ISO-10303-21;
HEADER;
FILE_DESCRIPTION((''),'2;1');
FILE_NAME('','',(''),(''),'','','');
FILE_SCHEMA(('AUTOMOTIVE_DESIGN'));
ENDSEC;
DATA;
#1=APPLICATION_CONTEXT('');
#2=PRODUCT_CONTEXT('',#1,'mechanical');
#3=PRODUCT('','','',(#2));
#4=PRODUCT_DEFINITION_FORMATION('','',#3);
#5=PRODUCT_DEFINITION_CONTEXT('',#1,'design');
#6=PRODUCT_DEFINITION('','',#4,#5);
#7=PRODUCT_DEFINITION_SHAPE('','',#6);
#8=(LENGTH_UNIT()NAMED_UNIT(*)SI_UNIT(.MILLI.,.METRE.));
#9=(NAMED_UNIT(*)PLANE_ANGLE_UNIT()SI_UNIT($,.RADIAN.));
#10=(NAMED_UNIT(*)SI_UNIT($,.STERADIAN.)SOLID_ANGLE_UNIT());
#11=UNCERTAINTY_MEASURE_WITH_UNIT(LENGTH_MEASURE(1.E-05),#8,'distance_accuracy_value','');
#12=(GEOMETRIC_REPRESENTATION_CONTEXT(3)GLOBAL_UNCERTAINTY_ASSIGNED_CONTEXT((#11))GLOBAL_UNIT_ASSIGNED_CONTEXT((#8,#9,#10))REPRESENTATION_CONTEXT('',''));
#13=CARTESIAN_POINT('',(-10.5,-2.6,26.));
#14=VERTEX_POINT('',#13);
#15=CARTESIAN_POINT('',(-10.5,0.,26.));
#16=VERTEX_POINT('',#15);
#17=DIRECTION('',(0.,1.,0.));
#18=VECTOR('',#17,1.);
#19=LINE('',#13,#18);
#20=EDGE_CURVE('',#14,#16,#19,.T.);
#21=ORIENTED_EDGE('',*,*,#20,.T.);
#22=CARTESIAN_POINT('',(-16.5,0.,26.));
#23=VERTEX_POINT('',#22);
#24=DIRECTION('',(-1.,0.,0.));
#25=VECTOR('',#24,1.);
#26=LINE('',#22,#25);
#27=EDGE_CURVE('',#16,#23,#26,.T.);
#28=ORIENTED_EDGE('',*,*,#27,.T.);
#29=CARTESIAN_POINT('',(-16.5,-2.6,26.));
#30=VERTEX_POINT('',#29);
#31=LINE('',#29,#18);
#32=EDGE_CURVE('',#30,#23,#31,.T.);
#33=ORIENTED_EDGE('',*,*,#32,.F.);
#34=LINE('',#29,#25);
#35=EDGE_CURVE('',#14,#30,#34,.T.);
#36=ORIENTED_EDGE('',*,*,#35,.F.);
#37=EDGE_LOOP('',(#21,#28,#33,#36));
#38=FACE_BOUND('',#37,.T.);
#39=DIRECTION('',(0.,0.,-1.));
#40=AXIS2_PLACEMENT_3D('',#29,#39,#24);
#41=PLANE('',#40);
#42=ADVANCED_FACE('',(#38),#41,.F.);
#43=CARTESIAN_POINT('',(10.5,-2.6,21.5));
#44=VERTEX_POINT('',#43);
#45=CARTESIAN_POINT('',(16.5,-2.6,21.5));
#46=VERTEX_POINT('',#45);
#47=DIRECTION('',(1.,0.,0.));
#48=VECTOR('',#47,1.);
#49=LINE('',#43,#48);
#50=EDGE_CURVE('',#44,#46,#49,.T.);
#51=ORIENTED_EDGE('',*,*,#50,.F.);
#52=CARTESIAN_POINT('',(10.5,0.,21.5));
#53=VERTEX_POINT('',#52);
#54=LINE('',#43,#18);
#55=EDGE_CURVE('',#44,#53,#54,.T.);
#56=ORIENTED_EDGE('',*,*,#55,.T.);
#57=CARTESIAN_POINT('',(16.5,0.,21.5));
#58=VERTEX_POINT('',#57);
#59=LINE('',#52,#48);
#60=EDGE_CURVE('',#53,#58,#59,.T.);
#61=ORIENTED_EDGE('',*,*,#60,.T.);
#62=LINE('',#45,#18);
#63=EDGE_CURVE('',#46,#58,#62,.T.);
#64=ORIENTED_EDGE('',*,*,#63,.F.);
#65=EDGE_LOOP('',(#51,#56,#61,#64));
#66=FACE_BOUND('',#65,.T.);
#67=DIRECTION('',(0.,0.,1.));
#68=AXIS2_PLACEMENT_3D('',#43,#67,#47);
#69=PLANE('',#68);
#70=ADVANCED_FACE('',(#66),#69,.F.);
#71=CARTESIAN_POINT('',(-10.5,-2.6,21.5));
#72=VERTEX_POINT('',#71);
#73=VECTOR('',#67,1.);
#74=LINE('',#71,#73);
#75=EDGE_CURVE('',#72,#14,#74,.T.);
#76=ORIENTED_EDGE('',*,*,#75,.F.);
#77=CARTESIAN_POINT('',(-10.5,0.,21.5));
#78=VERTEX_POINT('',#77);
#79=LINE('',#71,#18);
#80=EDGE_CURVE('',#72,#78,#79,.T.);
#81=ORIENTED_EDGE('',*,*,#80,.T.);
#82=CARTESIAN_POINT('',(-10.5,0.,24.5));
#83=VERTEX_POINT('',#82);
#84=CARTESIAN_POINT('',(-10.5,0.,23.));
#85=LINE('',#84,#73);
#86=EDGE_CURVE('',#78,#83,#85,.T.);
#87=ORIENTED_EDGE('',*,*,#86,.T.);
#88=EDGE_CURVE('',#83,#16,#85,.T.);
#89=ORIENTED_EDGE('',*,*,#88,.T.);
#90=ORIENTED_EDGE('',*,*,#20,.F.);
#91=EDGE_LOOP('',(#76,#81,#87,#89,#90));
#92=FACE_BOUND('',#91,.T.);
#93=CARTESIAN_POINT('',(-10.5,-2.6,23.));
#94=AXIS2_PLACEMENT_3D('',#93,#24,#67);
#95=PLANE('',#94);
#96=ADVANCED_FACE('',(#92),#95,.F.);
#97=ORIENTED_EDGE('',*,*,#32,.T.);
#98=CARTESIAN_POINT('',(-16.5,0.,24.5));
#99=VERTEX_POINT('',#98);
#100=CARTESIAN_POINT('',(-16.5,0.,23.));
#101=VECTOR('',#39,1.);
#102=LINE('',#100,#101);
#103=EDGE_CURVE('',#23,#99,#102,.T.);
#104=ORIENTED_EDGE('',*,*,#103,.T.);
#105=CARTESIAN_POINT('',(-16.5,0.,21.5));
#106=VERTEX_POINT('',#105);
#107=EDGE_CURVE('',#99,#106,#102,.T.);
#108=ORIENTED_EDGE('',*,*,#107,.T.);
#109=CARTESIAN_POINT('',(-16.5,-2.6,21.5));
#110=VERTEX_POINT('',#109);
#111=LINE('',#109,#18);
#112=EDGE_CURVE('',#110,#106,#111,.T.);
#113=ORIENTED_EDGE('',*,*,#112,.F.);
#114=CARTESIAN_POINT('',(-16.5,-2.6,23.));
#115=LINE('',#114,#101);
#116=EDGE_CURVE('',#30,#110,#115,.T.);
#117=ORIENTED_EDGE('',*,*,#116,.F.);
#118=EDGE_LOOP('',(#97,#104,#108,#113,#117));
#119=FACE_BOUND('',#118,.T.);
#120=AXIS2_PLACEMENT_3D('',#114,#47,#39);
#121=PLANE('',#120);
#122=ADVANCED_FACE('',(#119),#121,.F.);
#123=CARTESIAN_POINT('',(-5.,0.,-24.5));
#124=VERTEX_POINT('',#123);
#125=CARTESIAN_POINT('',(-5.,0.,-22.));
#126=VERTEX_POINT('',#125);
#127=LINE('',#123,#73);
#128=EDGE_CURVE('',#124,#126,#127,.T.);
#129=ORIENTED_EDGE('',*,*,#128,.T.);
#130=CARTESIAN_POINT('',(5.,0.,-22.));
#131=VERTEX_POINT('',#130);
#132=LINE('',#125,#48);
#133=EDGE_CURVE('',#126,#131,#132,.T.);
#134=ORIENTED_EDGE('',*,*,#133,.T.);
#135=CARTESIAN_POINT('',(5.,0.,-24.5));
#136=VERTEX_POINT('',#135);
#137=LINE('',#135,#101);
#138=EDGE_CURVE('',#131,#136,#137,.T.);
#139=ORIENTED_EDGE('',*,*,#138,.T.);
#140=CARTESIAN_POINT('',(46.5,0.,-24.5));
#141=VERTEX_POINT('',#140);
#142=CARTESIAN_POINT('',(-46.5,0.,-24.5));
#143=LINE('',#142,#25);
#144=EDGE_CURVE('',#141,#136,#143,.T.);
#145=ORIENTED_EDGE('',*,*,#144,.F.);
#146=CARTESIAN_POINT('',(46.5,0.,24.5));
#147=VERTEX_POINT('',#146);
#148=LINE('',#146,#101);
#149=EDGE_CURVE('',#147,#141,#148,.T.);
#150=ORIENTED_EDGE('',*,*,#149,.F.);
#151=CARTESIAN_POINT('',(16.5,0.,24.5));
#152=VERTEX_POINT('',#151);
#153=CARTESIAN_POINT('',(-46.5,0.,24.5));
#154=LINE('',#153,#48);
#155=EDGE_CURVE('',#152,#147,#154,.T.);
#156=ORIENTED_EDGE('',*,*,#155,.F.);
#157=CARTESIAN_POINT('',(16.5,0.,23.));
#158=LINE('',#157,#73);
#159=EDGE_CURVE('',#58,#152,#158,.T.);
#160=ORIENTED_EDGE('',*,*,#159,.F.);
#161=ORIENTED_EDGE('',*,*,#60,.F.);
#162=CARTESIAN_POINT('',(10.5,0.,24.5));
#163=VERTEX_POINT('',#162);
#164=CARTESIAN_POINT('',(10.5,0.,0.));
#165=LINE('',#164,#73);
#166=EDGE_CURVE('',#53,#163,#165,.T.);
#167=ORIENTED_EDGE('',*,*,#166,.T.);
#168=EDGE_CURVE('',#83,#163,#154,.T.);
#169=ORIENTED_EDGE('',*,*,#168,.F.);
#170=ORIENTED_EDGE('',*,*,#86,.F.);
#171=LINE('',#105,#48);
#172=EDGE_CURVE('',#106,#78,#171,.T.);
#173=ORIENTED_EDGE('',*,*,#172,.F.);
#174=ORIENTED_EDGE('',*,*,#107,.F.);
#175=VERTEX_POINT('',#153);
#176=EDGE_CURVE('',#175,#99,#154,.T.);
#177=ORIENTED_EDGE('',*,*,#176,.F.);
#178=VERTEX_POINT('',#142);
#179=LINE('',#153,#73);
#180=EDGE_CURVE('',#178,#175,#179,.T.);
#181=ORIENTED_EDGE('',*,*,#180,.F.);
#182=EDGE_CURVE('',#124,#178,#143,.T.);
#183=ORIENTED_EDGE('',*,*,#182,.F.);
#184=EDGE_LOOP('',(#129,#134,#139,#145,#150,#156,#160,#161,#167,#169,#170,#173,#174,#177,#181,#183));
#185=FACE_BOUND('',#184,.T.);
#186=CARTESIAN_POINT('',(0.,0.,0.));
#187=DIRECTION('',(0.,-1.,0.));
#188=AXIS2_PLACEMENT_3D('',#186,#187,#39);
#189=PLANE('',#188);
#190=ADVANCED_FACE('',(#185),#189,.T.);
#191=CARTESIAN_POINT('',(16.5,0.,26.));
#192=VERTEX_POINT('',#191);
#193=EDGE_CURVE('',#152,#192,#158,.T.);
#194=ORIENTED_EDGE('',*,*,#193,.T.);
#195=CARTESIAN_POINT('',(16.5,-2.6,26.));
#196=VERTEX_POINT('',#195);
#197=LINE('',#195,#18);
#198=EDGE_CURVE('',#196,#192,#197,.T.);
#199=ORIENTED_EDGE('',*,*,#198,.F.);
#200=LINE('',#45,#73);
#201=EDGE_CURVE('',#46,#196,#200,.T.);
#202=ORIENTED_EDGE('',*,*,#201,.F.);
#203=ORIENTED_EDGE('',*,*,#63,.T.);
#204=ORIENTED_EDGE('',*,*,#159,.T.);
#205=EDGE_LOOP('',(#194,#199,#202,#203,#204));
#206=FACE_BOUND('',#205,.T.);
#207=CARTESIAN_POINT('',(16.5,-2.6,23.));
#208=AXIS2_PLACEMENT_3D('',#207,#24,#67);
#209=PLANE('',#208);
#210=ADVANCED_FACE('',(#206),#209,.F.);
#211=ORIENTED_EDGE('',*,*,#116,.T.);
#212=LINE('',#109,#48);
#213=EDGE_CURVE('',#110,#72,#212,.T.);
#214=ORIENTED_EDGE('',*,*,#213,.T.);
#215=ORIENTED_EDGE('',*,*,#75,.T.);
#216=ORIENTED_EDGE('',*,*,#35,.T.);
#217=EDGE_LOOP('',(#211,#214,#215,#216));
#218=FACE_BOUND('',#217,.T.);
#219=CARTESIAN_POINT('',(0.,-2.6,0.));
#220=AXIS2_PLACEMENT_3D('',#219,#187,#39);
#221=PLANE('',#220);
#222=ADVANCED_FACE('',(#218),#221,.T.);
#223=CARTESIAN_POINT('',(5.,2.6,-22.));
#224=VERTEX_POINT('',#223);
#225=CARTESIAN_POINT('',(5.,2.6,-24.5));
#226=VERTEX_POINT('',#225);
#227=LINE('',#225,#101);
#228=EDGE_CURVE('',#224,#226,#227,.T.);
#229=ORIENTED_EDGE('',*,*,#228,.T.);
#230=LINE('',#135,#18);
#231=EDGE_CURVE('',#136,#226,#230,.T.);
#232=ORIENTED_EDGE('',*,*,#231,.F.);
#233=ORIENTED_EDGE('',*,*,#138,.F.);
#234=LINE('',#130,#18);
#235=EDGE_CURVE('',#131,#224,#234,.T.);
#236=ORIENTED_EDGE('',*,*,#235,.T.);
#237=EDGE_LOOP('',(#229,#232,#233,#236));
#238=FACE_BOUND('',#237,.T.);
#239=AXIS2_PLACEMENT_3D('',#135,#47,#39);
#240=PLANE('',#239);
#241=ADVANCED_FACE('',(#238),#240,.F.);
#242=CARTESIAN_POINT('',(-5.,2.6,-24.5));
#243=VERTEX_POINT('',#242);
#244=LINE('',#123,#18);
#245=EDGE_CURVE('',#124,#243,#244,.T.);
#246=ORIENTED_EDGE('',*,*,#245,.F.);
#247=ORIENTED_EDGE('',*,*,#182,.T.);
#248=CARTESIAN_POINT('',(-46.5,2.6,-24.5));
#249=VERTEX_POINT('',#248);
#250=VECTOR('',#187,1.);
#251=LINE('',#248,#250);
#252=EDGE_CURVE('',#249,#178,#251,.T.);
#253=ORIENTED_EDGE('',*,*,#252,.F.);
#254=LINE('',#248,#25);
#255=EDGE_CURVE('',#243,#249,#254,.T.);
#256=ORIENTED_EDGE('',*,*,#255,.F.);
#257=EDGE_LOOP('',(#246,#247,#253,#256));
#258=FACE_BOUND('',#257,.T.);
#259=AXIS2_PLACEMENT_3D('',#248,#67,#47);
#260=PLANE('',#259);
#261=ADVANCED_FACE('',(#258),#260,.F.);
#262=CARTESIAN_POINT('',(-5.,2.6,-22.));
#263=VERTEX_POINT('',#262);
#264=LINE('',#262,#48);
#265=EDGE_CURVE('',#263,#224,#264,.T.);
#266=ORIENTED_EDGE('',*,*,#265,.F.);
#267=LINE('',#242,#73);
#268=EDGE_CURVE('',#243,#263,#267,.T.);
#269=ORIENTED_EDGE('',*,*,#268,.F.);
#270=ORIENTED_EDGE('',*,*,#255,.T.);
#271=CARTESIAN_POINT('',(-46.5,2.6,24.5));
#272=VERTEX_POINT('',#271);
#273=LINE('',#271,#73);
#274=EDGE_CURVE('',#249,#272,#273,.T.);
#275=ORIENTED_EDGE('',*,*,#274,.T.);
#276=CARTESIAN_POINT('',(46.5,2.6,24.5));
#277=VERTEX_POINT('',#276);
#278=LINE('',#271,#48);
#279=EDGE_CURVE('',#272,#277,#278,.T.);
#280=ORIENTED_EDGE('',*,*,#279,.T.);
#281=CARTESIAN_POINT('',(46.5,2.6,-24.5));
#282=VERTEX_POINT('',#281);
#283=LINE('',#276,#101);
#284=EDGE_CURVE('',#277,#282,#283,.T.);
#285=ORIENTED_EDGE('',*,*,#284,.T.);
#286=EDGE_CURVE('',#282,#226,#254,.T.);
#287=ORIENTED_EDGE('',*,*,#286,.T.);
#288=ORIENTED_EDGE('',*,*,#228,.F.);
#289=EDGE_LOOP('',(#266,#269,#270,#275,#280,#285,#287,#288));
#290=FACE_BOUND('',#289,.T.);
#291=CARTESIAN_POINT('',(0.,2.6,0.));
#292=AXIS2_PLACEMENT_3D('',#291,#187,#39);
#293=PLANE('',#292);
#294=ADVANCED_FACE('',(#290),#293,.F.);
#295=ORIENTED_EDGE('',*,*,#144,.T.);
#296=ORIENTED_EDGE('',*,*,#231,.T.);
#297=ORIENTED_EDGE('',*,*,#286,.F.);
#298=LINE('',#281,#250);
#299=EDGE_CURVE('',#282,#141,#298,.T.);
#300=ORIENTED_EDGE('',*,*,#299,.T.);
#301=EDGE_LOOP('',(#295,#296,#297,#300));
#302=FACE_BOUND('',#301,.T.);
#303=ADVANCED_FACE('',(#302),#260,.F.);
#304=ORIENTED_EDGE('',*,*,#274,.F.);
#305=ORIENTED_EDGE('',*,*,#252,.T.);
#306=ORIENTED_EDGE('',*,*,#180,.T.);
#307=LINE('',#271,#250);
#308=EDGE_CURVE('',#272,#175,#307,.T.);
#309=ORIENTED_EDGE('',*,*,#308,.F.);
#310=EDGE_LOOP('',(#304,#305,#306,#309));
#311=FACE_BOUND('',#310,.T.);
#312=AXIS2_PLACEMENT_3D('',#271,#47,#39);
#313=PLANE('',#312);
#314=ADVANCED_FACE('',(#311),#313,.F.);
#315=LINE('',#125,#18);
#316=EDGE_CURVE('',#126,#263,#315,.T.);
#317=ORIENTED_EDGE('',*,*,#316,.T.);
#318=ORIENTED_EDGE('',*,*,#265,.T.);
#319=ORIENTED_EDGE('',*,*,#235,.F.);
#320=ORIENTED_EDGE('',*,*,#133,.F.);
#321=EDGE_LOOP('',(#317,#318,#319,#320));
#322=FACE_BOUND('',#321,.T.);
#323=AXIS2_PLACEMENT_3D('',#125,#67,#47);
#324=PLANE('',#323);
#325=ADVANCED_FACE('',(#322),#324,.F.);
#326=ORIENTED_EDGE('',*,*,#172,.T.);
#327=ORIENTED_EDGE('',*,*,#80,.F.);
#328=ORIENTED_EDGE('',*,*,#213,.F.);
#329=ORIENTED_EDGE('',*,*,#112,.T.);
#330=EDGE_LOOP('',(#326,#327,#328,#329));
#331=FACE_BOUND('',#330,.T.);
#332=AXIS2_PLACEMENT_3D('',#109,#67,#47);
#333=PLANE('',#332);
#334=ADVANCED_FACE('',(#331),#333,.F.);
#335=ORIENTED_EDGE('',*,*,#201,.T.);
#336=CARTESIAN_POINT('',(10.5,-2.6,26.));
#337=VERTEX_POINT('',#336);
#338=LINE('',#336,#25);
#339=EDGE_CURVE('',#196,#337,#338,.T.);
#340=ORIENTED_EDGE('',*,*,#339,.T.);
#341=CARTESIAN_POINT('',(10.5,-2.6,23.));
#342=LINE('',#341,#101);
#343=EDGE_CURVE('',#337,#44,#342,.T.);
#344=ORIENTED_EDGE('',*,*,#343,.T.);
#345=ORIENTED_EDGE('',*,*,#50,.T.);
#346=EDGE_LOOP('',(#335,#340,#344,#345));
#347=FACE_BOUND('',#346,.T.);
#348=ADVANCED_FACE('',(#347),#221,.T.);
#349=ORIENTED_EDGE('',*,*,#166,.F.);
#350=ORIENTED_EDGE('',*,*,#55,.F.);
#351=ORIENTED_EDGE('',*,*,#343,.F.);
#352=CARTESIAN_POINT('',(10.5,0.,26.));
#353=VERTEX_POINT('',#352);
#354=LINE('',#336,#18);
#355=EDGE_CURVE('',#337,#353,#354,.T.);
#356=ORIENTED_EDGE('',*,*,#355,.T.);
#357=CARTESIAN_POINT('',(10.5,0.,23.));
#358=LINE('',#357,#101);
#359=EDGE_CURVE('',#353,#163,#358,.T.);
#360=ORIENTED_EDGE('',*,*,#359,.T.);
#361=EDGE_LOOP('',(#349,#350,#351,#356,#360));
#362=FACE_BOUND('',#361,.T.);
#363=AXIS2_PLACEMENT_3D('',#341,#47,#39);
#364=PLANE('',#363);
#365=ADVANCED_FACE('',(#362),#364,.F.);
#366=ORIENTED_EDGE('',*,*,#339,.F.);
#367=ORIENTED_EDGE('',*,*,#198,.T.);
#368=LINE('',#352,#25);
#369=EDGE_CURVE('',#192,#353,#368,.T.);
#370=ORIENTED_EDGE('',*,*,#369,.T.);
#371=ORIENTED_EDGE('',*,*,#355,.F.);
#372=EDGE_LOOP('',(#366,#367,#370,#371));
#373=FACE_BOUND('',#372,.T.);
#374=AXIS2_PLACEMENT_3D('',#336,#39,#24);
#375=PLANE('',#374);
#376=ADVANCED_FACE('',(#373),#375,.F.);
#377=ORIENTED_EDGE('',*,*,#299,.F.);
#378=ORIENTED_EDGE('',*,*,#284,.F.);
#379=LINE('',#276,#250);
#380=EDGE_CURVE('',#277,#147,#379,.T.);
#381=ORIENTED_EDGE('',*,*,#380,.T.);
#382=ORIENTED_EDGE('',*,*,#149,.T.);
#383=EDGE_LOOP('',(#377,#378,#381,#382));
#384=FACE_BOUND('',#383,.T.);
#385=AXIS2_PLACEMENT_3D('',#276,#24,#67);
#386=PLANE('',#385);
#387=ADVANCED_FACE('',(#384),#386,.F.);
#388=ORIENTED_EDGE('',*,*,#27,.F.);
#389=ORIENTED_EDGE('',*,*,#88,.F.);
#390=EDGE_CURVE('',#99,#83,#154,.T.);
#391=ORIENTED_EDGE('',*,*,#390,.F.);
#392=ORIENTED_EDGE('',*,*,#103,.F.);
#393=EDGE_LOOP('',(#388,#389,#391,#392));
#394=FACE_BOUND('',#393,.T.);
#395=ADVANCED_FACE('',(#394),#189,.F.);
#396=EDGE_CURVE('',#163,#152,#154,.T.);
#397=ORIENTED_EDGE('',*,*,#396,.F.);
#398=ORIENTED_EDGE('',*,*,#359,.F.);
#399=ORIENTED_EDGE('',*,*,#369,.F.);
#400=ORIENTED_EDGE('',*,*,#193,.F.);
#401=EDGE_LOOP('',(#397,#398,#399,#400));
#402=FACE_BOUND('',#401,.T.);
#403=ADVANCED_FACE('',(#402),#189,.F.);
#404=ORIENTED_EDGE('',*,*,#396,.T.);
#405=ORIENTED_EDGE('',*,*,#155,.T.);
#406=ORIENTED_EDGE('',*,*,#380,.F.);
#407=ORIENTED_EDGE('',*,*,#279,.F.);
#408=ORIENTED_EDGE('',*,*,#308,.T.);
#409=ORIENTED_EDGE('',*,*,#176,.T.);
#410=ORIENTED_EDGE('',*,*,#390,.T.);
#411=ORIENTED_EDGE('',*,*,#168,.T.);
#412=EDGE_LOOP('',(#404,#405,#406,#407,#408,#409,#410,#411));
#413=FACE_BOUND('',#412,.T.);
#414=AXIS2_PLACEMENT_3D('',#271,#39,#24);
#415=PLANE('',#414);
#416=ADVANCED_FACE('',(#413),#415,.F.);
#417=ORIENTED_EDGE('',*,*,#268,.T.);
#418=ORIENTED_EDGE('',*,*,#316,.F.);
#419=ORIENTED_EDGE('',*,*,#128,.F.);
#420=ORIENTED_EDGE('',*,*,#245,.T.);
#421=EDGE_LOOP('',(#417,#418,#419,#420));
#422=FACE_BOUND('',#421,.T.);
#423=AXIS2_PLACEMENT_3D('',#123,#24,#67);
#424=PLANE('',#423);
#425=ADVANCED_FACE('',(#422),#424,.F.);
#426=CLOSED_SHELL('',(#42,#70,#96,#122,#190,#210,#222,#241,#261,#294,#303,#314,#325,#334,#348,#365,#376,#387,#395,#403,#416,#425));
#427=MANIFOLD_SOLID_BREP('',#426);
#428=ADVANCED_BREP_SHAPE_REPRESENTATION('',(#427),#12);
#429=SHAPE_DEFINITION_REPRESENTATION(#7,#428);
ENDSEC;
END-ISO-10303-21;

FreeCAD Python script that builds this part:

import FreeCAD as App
import Part
import Sketcher
from FreeCAD import Vector
Q = App.Units.Quantity


def add_polygon(sketch, points):
    """Adds a closed chain of lines whose ends are joined by coincident constraints."""
    first, n = sketch.GeometryCount, len(points)
    for a, b in zip(points, points[1:] + points[:1]):
        sketch.addGeometry(Part.LineSegment(App.Vector(*a, 0), App.Vector(*b, 0)), False)
    for i in range(n):
        sketch.addConstraint(Sketcher.Constraint("Coincident", first + i, 2, first + (i + 1) % n, 1))

doc = App.newDocument("Part")
body = doc.addObject("PartDesign::Body", "Body")

# Sketch on XZ plane
sketch1 = body.newObject("Sketcher::SketchObject", "Sketch")
sketch1.AttachmentSupport = (doc.getObject("XZ_Plane"), [""])
sketch1.MapMode = "FlatFace"
add_polygon(sketch1, [(-46.5, -24.5), (-46.5, 24.5), (46.5, 24.5), (46.5, -24.5)])  # lines 0-3
sketch1.addConstraint(Sketcher.Constraint("Vertical", 0))
sketch1.addConstraint(Sketcher.Constraint("Horizontal", 1))
sketch1.addConstraint(Sketcher.Constraint("Vertical", 2))
sketch1.addConstraint(Sketcher.Constraint("Horizontal", 3))
sketch1.addConstraint(Sketcher.Constraint("Symmetric", 0, 2, 2, 2, -1, 1))
sketch1.addConstraint(Sketcher.Constraint("DistanceX", 1, 1, 1, 2, Q("93 mm")))
sketch1.addConstraint(Sketcher.Constraint("DistanceY", 0, 1, 0, 2, Q("49 mm")))
pad1 = body.newObject("PartDesign::Pad", "Pad")
pad1.Profile = sketch1
pad1.Length = 2.6
pad1.Reversed = True

# Sketch on XZ plane
sketch2 = body.newObject("Sketcher::SketchObject", "Sketch001")
sketch2.AttachmentSupport = (doc.getObject("XZ_Plane"), [""])
sketch2.MapMode = "FlatFace"
sketch2.AttachmentOffset = App.Placement(Vector(0, 0, -2.6), App.Rotation())
add_polygon(sketch2, [(-5, -24.5), (-5, -22), (5, -22), (5, -24.5)])  # lines 0-3
sketch2.addConstraint(Sketcher.Constraint("Vertical", 0))
sketch2.addConstraint(Sketcher.Constraint("Horizontal", 1))
sketch2.addConstraint(Sketcher.Constraint("Vertical", 2))
sketch2.addConstraint(Sketcher.Constraint("Horizontal", 3))
sketch2.addConstraint(Sketcher.Constraint("DistanceX", 1, 1, 1, 2, Q("10 mm")))
sketch2.addConstraint(Sketcher.Constraint("DistanceY", 0, 1, 0, 2, Q("2.5 mm")))
sketch2.addConstraint(Sketcher.Constraint("DistanceX", 0, 2, -1, 1, Q("5 mm")))
sketch2.addConstraint(Sketcher.Constraint("DistanceY", 0, 2, -1, 1, Q("22 mm")))
pocket1 = body.newObject("PartDesign::Pocket", "Pocket")
pocket1.Profile = sketch2
pocket1.Length = 2.6
pocket1.Reversed = True

# Sketch on XZ plane
sketch3 = body.newObject("Sketcher::SketchObject", "Sketch002")
sketch3.AttachmentSupport = (doc.getObject("XZ_Plane"), [""])
sketch3.MapMode = "FlatFace"
add_polygon(sketch3, [(-16.5, 26), (-16.5, 21.5), (-10.5, 21.5), (-10.5, 26)])  # lines 0-3
add_polygon(sketch3, [(10.5, 26), (10.5, 21.5), (16.5, 21.5), (16.5, 26)])  # lines 4-7
sketch3.addConstraint(Sketcher.Constraint("Vertical", 0))
sketch3.addConstraint(Sketcher.Constraint("Horizontal", 1))
sketch3.addConstraint(Sketcher.Constraint("Vertical", 2))
sketch3.addConstraint(Sketcher.Constraint("Horizontal", 3))
sketch3.addConstraint(Sketcher.Constraint("Vertical", 4))
sketch3.addConstraint(Sketcher.Constraint("Horizontal", 5))
sketch3.addConstraint(Sketcher.Constraint("Vertical", 6))
sketch3.addConstraint(Sketcher.Constraint("Horizontal", 7))
sketch3.addConstraint(Sketcher.Constraint("Symmetric", 1, 2, 4, 2, -2))
sketch3.addConstraint(Sketcher.Constraint("Symmetric", 3, 2, 6, 2, -2))
sketch3.addConstraint(Sketcher.Constraint("DistanceX", 1, 1, 1, 2, Q("6 mm")))
sketch3.addConstraint(Sketcher.Constraint("DistanceY", 0, 2, 0, 1, Q("4.5 mm")))
sketch3.addConstraint(Sketcher.Constraint("DistanceY", -1, 1, 2, 2, Q("26 mm")))
sketch3.addConstraint(Sketcher.Constraint("DistanceX", 1, 2, 4, 2, Q("21 mm")))
pad2 = body.newObject("PartDesign::Pad", "Pad001")
pad2.Profile = sketch3
pad2.Length = 2.6

doc.recompute()
